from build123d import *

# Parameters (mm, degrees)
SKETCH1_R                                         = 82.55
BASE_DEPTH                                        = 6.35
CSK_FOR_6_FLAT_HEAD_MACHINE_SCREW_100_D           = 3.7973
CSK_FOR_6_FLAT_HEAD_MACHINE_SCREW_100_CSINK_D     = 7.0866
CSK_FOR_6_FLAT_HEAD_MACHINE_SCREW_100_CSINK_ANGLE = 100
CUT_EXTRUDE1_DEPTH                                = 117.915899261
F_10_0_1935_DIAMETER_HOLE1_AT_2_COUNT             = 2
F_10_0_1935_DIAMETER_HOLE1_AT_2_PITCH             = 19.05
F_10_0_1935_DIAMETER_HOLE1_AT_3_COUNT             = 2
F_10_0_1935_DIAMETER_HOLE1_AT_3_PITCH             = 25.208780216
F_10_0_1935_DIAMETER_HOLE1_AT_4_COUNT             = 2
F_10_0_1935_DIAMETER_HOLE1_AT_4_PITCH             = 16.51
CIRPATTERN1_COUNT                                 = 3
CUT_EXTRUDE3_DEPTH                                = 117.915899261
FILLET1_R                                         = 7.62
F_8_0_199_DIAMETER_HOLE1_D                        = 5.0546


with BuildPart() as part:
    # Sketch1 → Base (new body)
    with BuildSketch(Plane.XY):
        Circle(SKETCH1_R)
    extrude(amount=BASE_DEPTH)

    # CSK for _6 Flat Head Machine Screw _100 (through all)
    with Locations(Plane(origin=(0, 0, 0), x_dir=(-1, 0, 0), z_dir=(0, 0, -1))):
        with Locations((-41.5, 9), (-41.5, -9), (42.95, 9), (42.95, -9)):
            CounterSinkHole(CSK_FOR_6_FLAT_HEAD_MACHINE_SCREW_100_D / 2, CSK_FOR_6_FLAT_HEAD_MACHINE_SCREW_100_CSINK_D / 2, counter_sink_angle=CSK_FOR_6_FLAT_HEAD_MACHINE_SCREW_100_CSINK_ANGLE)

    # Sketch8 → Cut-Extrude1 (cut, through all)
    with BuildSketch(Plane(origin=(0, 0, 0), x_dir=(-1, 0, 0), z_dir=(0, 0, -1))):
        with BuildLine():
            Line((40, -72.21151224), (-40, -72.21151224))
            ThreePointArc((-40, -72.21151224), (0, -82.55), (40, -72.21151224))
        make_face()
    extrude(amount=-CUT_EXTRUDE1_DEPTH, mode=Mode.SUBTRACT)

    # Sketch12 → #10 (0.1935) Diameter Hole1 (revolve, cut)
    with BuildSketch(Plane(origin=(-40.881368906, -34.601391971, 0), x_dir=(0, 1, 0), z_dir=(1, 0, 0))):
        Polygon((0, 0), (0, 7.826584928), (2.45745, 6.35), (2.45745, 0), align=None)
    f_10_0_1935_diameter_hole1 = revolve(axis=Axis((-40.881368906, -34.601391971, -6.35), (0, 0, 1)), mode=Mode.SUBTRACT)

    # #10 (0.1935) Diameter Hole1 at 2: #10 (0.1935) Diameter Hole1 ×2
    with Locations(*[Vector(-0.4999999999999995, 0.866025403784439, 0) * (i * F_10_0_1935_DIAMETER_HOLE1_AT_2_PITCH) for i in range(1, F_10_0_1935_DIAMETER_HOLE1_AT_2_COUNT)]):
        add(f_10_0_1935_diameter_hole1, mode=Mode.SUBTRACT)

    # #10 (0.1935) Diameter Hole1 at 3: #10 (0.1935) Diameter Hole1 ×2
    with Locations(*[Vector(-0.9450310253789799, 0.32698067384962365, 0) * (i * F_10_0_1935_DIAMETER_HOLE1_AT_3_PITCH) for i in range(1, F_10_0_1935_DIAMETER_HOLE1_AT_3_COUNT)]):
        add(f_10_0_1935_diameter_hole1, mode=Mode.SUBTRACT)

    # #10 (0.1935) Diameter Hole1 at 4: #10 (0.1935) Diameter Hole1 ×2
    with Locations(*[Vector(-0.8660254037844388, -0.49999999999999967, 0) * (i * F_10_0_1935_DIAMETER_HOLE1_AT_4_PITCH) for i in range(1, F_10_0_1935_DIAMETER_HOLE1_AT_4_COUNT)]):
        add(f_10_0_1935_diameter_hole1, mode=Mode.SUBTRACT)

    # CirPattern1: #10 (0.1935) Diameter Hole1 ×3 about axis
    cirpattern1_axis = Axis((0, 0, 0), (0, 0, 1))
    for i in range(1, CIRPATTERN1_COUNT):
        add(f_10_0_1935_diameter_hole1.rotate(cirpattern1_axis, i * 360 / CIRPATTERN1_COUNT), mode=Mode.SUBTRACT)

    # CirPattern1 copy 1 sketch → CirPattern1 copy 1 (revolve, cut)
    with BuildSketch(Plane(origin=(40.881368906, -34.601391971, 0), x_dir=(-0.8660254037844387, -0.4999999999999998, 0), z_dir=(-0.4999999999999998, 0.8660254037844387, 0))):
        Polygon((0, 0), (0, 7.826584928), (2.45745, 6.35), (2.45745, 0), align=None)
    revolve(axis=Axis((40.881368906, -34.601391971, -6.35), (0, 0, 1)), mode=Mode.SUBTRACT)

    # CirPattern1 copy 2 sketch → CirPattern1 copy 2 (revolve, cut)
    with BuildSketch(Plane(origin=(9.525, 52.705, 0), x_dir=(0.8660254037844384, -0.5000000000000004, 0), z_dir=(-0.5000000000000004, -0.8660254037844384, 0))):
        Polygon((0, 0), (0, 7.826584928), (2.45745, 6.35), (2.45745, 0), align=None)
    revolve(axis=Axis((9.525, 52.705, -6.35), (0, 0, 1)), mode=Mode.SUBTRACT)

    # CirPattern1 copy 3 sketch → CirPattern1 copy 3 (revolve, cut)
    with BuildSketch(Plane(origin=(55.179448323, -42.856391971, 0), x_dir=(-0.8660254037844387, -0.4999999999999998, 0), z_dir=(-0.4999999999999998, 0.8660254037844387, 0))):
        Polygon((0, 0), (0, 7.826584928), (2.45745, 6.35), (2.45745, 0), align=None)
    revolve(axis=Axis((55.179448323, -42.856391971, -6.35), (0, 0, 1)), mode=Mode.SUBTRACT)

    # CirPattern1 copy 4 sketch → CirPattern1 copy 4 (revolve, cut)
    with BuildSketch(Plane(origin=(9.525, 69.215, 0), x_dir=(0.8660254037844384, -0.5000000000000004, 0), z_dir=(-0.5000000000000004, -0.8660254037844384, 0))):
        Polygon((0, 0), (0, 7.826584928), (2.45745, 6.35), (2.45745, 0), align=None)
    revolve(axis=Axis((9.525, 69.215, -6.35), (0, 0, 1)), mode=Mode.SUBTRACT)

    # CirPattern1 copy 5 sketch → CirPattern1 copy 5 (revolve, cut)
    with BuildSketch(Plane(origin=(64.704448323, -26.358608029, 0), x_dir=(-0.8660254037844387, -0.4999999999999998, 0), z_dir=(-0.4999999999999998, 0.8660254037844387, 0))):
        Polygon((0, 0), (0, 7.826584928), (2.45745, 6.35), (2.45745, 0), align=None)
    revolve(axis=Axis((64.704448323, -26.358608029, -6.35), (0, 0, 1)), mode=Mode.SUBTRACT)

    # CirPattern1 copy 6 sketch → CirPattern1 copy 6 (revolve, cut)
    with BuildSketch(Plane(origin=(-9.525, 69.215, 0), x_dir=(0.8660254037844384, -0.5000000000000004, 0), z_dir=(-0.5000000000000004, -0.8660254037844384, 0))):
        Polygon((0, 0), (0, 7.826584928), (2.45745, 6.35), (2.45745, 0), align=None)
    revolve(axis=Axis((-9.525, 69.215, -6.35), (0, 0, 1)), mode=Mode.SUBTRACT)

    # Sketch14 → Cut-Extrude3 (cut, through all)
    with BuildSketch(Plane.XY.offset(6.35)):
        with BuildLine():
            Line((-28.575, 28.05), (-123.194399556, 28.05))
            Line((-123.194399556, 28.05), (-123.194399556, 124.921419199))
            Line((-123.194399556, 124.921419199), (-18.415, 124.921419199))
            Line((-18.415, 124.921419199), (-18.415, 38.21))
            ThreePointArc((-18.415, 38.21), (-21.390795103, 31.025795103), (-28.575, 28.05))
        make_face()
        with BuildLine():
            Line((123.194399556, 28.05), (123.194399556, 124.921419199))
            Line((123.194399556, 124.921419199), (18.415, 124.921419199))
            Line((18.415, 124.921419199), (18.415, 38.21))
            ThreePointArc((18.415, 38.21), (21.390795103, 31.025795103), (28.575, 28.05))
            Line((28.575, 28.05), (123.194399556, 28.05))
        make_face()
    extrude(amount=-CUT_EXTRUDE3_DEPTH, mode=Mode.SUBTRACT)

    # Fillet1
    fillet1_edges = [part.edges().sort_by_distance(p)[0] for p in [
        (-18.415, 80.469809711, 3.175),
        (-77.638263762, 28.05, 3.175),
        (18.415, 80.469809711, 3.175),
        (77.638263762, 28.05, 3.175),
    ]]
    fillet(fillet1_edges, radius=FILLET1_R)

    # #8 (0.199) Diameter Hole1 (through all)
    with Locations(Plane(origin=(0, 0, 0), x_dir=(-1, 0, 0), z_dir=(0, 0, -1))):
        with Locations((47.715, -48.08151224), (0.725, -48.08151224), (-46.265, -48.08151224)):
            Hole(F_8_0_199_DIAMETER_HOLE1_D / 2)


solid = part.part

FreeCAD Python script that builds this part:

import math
import FreeCAD as App
import Part
import Sketcher

V = App.Vector
Q = App.Units.Quantity


def edges_at(feature, points):
    """Names of the edges that pass closest to the given points."""
    edges = feature.Shape.Edges
    near = lambda p: min(range(len(edges)), key=lambda i: edges[i].distToShape(Part.Vertex(*p))[0])
    return sorted({f"Edge{near(p) + 1}" for p in points})


def add_polygon(sketch, points):
    """Adds a closed chain of lines whose ends are joined by coincident constraints."""
    first, n = sketch.GeometryCount, len(points)
    for a, b in zip(points, points[1:] + points[:1]):
        sketch.addGeometry(Part.LineSegment(App.Vector(*a, 0), App.Vector(*b, 0)), False)
    for i in range(n):
        sketch.addConstraint(Sketcher.Constraint("Coincident", first + i, 2, first + (i + 1) % n, 1))

doc = App.newDocument("Part")
params = doc.addObject("Spreadsheet::Sheet", "Params")
for row, (alias, value) in enumerate([
    ("sketch1_diameter", "6.5 in"),
    ("pad1_length", "0.25 in"),
    ("hole_diameter", "0.1495 in"),
    ("hole_csink_diameter", "0.279 in"),
    ("sketch3_radius", "3.25 in"),
    ("sketch4_height", "0.25 in"),
    ("groove_angle", "360 deg"),
    ("linearpattern_pitch", "0.75 in"),
    ("linearpattern2_pitch", "25.20878 mm"),
    ("linearpattern3_pitch", "0.65 in"),
    ("sketch5_height", "0.25 in"),
    ("groove2_angle", "360 deg"),
    ("sketch6_height", "0.25 in"),
    ("groove3_angle", "360 deg"),
    ("sketch7_height", "0.25 in"),
    ("groove4_angle", "360 deg"),
    ("sketch8_height", "0.25 in"),
    ("groove5_angle", "360 deg"),
    ("sketch9_height", "0.25 in"),
    ("groove6_angle", "360 deg"),
    ("sketch10_height", "0.25 in"),
    ("groove7_angle", "360 deg"),
    ("sketch11_radius", "0.4 in"),
    ("fillet_radius", "0.3 in"),
    ("sketch12_diameter", "0.199 in"),
    ("hole2_diameter", "0.199 in"),
], start=1):
    params.set(f"A{row}", alias)
    params.set(f"B{row}", "=" + value)
    params.setAlias(f"B{row}", alias)

body = doc.addObject("PartDesign::Body", "Body")

# Sketch on XY plane
sketch1 = body.newObject("Sketcher::SketchObject", "Sketch")
sketch1.AttachmentSupport = (doc.getObject("XY_Plane"), [""])
sketch1.MapMode = "FlatFace"
sketch1.addGeometry(Part.Circle(V(0, 0, 0), V(0, 0, 1), 83), False)
sketch1.addConstraint(Sketcher.Constraint("Coincident", 0, 3, -1, 1))
sketch1.addConstraint(Sketcher.Constraint("Diameter", 0, Q("6.5 in")))
sketch1.setExpression("Constraints[1]", "Params.sketch1_diameter")
pad1 = body.newObject("PartDesign::Pad", "Pad")
pad1.Profile = sketch1
pad1.setExpression("Length", "Params.pad1_length")

# Sketch on XY plane
sketch2 = body.newObject("Sketcher::SketchObject", "Sketch001")
sketch2.AttachmentSupport = (doc.getObject("XY_Plane"), [""])
sketch2.MapMode = "FlatFace"
sketch2.addGeometry(Part.Circle(V(41.5, 9, 0), V(0, 0, 1), 1.9), False)
sketch2.addGeometry(Part.Circle(V(41.5, -9, 0), V(0, 0, 1), 1.9), False)
sketch2.addGeometry(Part.Circle(V(-43, 9, 0), V(0, 0, 1), 1.9), False)
sketch2.addGeometry(Part.Circle(V(-43, -9, 0), V(0, 0, 1), 1.9), False)
sketch2.addConstraint(Sketcher.Constraint("Equal", 0, 1))
sketch2.addConstraint(Sketcher.Constraint("Equal", 1, 2))
sketch2.addConstraint(Sketcher.Constraint("Equal", 2, 3))
sketch2.addConstraint(Sketcher.Constraint("Symmetric", 0, 3, 1, 3, -1))
sketch2.addConstraint(Sketcher.Constraint("Symmetric", 2, 3, 3, 3, -1))
sketch2.addConstraint(Sketcher.Constraint("Horizontal", 0, 3, 2, 3))
sketch2.addConstraint(Sketcher.Constraint("Diameter", 0, Q("0.1495 in")))
sketch2.addConstraint(Sketcher.Constraint("DistanceX", -1, 1, 0, 3, Q("41.5 mm")))
sketch2.addConstraint(Sketcher.Constraint("DistanceY", -1, 1, 0, 3, Q("9 mm")))
sketch2.addConstraint(Sketcher.Constraint("DistanceX", 2, 3, -1, 1, Q("42.95 mm")))
doc.recompute()
hole = body.newObject("PartDesign::Hole", "Hole")
hole.Profile = sketch2
hole.ThreadType = "None"
hole.setExpression("Diameter", "Params.hole_diameter")
hole.DepthType = "ThroughAll"
hole.HoleCutType = "Countersink"
hole.setExpression("HoleCutDiameter", "Params.hole_csink_diameter")
hole.HoleCutCountersinkAngle = 100
hole.Reversed = True

# Sketch on XY plane
sketch3 = body.newObject("Sketcher::SketchObject", "Sketch002")
sketch3.AttachmentSupport = (doc.getObject("XY_Plane"), [""])
sketch3.MapMode = "FlatFace"
sketch3.addGeometry(Part.LineSegment(V(-40, -72, 0), V(40, -72, 0)), False)
sketch3.addGeometry(Part.ArcOfCircle(Part.Circle(V(0, 0, 0), V(0, 0, 1), 83), math.radians(-119), math.radians(-61)), False)
sketch3.addConstraint(Sketcher.Constraint("Coincident", 0, 1, 1, 1))
sketch3.addConstraint(Sketcher.Constraint("Coincident", 1, 2, 0, 2))
sketch3.addConstraint(Sketcher.Constraint("Horizontal", 0))
sketch3.addConstraint(Sketcher.Constraint("Coincident", 1, 3, -1, 1))
sketch3.addConstraint(Sketcher.Constraint("Radius", 1, Q("3.25 in")))
sketch3.addConstraint(Sketcher.Constraint("DistanceX", 0, 1, 0, 2, Q("80 mm")))
sketch3.setExpression("Constraints[4]", "Params.sketch3_radius")
pocket1 = body.newObject("PartDesign::Pocket", "Pocket")
pocket1.Profile = sketch3
pocket1.Type = "ThroughAll"
pocket1.Reversed = True

# Sketch on YZ plane
sketch4 = body.newObject("Sketcher::SketchObject", "Sketch003")
sketch4.AttachmentSupport = (doc.getObject("YZ_Plane"), [""])
sketch4.MapMode = "FlatFace"
sketch4.AttachmentOffset = App.Placement(V(0, 0, -40.881369), App.Rotation())
add_polygon(sketch4, [(-34.6, 7.8), (-34.6, 0), (-32.1, 0), (-32.1, 6.3)])  # lines 0-3
sketch4.addGeometry(Part.LineSegment(V(-34.6, 0, 0), V(-34.6, 7.8, 0)), True)  # axis
sketch4.addConstraint(Sketcher.Constraint("Vertical", 0))
sketch4.addConstraint(Sketcher.Constraint("Horizontal", 1))
sketch4.addConstraint(Sketcher.Constraint("Vertical", 2))
sketch4.addConstraint(Sketcher.Constraint("Vertical", 4))
sketch4.addConstraint(Sketcher.Constraint("Coincident", 4, 1, 0, 2))
sketch4.addConstraint(Sketcher.Constraint("PointOnObject", 0, 2, -1))
sketch4.addConstraint(Sketcher.Constraint("Equal", 0, 4))
sketch4.addConstraint(Sketcher.Constraint("Angle", 3, Q("149 deg")))
sketch4.addConstraint(Sketcher.Constraint("DistanceY", 2, 1, 2, 2, Q("0.25 in")))
sketch4.addConstraint(Sketcher.Constraint("DistanceX", 1, 1, 1, 2, Q("2.45745 mm")))
sketch4.addConstraint(Sketcher.Constraint("DistanceX", 0, 2, -1, 1, Q("34.601392 mm")))
sketch4.setExpression("Constraints[12]", "Params.sketch4_height")
groove = body.newObject("PartDesign::Groove", "Groove")
groove.Profile = sketch4
groove.ReferenceAxis = (sketch4, ["Axis0"])
groove.setExpression("Angle", "Params.groove_angle")
doc.recompute()

datumline = body.newObject("PartDesign::Line", "DatumLine")
datumline.Placement = App.Placement(V(0, 0, 0), App.Rotation(V(0, 0, 1), V(-0.5, 0.866025404, 0)))
linearpattern = body.newObject("PartDesign::LinearPattern", "LinearPattern")
linearpattern.Originals = [groove]
linearpattern.Direction = (datumline, [""])
linearpattern.Mode = "offset"
linearpattern.setExpression("Offset", "Params.linearpattern_pitch")
linearpattern.Occurrences = 2
body.Tip = linearpattern
doc.recompute()

datumline2 = body.newObject("PartDesign::Line", "DatumLine001")
datumline2.Placement = App.Placement(V(0, 0, 0), App.Rotation(V(0, 0, 1), V(-0.945031025, 0.326980674, 0)))
linearpattern2 = body.newObject("PartDesign::LinearPattern", "LinearPattern001")
linearpattern2.Originals = [groove]
linearpattern2.Direction = (datumline2, [""])
linearpattern2.Mode = "offset"
linearpattern2.setExpression("Offset", "Params.linearpattern2_pitch")
linearpattern2.Occurrences = 2
body.Tip = linearpattern2
doc.recompute()

datumline3 = body.newObject("PartDesign::Line", "DatumLine002")
datumline3.Placement = App.Placement(V(0, 0, 0), App.Rotation(V(0, 0, 1), V(-0.866025404, -0.5, 0)))
linearpattern3 = body.newObject("PartDesign::LinearPattern", "LinearPattern002")
linearpattern3.Originals = [groove]
linearpattern3.Direction = (datumline3, [""])
linearpattern3.Mode = "offset"
linearpattern3.setExpression("Offset", "Params.linearpattern3_pitch")
linearpattern3.Occurrences = 2
body.Tip = linearpattern3
doc.recompute()

polarpattern = body.newObject("PartDesign::PolarPattern", "PolarPattern")
polarpattern.Originals = [groove]
polarpattern.Axis = (doc.getObject("Z_Axis"), [""])
polarpattern.Angle = 360
polarpattern.Occurrences = 3
body.Tip = polarpattern

# Sketch on an angled plane
sketch5 = body.newObject("Sketcher::SketchObject", "Sketch004")
sketch5.Placement = App.Placement(V(40.881369, -34.601392, 0), App.Rotation(V(-0.866025404, -0.5, 0), V(0, 0, 1), V(-0.5, 0.866025404, 0), "ZXY"))
add_polygon(sketch5, [(0, 7.8), (0, 0), (2.5, 0), (2.5, 6.4)])  # lines 0-3
sketch5.addConstraint(Sketcher.Constraint("Vertical", 0))
sketch5.addConstraint(Sketcher.Constraint("Horizontal", 1))
sketch5.addConstraint(Sketcher.Constraint("Vertical", 2))
sketch5.addConstraint(Sketcher.Constraint("Coincident", 0, 2, -1, 1))
sketch5.addConstraint(Sketcher.Constraint("Angle", 3, Q("149 deg")))
sketch5.addConstraint(Sketcher.Constraint("DistanceY", 2, 1, 2, 2, Q("0.25 in")))
sketch5.addConstraint(Sketcher.Constraint("DistanceX", 1, 1, 1, 2, Q("2.45745 mm")))
sketch5.setExpression("Constraints[9]", "Params.sketch5_height")
groove2 = body.newObject("PartDesign::Groove", "Groove001")
groove2.Profile = sketch5
groove2.ReferenceAxis = (sketch5, ["V_Axis"])
groove2.setExpression("Angle", "Params.groove2_angle")

# Sketch on an angled plane
sketch6 = body.newObject("Sketcher::SketchObject", "Sketch005")
sketch6.Placement = App.Placement(V(9.525, 52.705, 0), App.Rotation(V(0.866025404, -0.5, 0), V(0, 0, 1), V(-0.5, -0.866025404, 0), "ZXY"))
add_polygon(sketch6, [(0, 7.8), (0, 0), (2.5, 0), (2.5, 6.4)])  # lines 0-3
sketch6.addConstraint(Sketcher.Constraint("Vertical", 0))
sketch6.addConstraint(Sketcher.Constraint("Horizontal", 1))
sketch6.addConstraint(Sketcher.Constraint("Vertical", 2))
sketch6.addConstraint(Sketcher.Constraint("Coincident", 0, 2, -1, 1))
sketch6.addConstraint(Sketcher.Constraint("Angle", 3, Q("149 deg")))
sketch6.addConstraint(Sketcher.Constraint("DistanceY", 2, 1, 2, 2, Q("0.25 in")))
sketch6.addConstraint(Sketcher.Constraint("DistanceX", 1, 1, 1, 2, Q("2.45745 mm")))
sketch6.setExpression("Constraints[9]", "Params.sketch6_height")
groove3 = body.newObject("PartDesign::Groove", "Groove002")
groove3.Profile = sketch6
groove3.ReferenceAxis = (sketch6, ["V_Axis"])
groove3.setExpression("Angle", "Params.groove3_angle")

# Sketch on an angled plane
sketch7 = body.newObject("Sketcher::SketchObject", "Sketch006")
sketch7.Placement = App.Placement(V(55.179448, -42.856392, 0), App.Rotation(V(-0.866025404, -0.5, 0), V(0, 0, 1), V(-0.5, 0.866025404, 0), "ZXY"))
add_polygon(sketch7, [(0, 7.8), (0, 0), (2.5, 0), (2.5, 6.4)])  # lines 0-3
sketch7.addConstraint(Sketcher.Constraint("Vertical", 0))
sketch7.addConstraint(Sketcher.Constraint("Horizontal", 1))
sketch7.addConstraint(Sketcher.Constraint("Vertical", 2))
sketch7.addConstraint(Sketcher.Constraint("Coincident", 0, 2, -1, 1))
sketch7.addConstraint(Sketcher.Constraint("Angle", 3, Q("149 deg")))
sketch7.addConstraint(Sketcher.Constraint("DistanceY", 2, 1, 2, 2, Q("0.25 in")))
sketch7.addConstraint(Sketcher.Constraint("DistanceX", 1, 1, 1, 2, Q("2.45745 mm")))
sketch7.setExpression("Constraints[9]", "Params.sketch7_height")
groove4 = body.newObject("PartDesign::Groove", "Groove003")
groove4.Profile = sketch7
groove4.ReferenceAxis = (sketch7, ["V_Axis"])
groove4.setExpression("Angle", "Params.groove4_angle")

# Sketch on an angled plane
sketch8 = body.newObject("Sketcher::SketchObject", "Sketch007")
sketch8.Placement = App.Placement(V(9.525, 69.215, 0), App.Rotation(V(0.866025404, -0.5, 0), V(0, 0, 1), V(-0.5, -0.866025404, 0), "ZXY"))
add_polygon(sketch8, [(0, 7.8), (0, 0), (2.5, 0), (2.5, 6.4)])  # lines 0-3
sketch8.addConstraint(Sketcher.Constraint("Vertical", 0))
sketch8.addConstraint(Sketcher.Constraint("Horizontal", 1))
sketch8.addConstraint(Sketcher.Constraint("Vertical", 2))
sketch8.addConstraint(Sketcher.Constraint("Coincident", 0, 2, -1, 1))
sketch8.addConstraint(Sketcher.Constraint("Angle", 3, Q("149 deg")))
sketch8.addConstraint(Sketcher.Constraint("DistanceY", 2, 1, 2, 2, Q("0.25 in")))
sketch8.addConstraint(Sketcher.Constraint("DistanceX", 1, 1, 1, 2, Q("2.45745 mm")))
sketch8.setExpression("Constraints[9]", "Params.sketch8_height")
groove5 = body.newObject("PartDesign::Groove", "Groove004")
groove5.Profile = sketch8
groove5.ReferenceAxis = (sketch8, ["V_Axis"])
groove5.setExpression("Angle", "Params.groove5_angle")

# Sketch on an angled plane
sketch9 = body.newObject("Sketcher::SketchObject", "Sketch008")
sketch9.Placement = App.Placement(V(64.704448, -26.358608, 0), App.Rotation(V(-0.866025404, -0.5, 0), V(0, 0, 1), V(-0.5, 0.866025404, 0), "ZXY"))
add_polygon(sketch9, [(0, 7.8), (0, 0), (2.5, 0), (2.5, 6.4)])  # lines 0-3
sketch9.addConstraint(Sketcher.Constraint("Vertical", 0))
sketch9.addConstraint(Sketcher.Constraint("Horizontal", 1))
sketch9.addConstraint(Sketcher.Constraint("Vertical", 2))
sketch9.addConstraint(Sketcher.Constraint("Coincident", 0, 2, -1, 1))
sketch9.addConstraint(Sketcher.Constraint("Angle", 3, Q("149 deg")))
sketch9.addConstraint(Sketcher.Constraint("DistanceY", 2, 1, 2, 2, Q("0.25 in")))
sketch9.addConstraint(Sketcher.Constraint("DistanceX", 1, 1, 1, 2, Q("2.45745 mm")))
sketch9.setExpression("Constraints[9]", "Params.sketch9_height")
groove6 = body.newObject("PartDesign::Groove", "Groove005")
groove6.Profile = sketch9
groove6.ReferenceAxis = (sketch9, ["V_Axis"])
groove6.setExpression("Angle", "Params.groove6_angle")

# Sketch on an angled plane
sketch10 = body.newObject("Sketcher::SketchObject", "Sketch009")
sketch10.Placement = App.Placement(V(-9.525, 69.215, 0), App.Rotation(V(0.866025404, -0.5, 0), V(0, 0, 1), V(-0.5, -0.866025404, 0), "ZXY"))
add_polygon(sketch10, [(0, 7.8), (0, 0), (2.5, 0), (2.5, 6.4)])  # lines 0-3
sketch10.addConstraint(Sketcher.Constraint("Vertical", 0))
sketch10.addConstraint(Sketcher.Constraint("Horizontal", 1))
sketch10.addConstraint(Sketcher.Constraint("Vertical", 2))
sketch10.addConstraint(Sketcher.Constraint("Coincident", 0, 2, -1, 1))
sketch10.addConstraint(Sketcher.Constraint("Angle", 3, Q("149 deg")))
sketch10.addConstraint(Sketcher.Constraint("DistanceY", 2, 1, 2, 2, Q("0.25 in")))
sketch10.addConstraint(Sketcher.Constraint("DistanceX", 1, 1, 1, 2, Q("2.45745 mm")))
sketch10.setExpression("Constraints[9]", "Params.sketch10_height")
groove7 = body.newObject("PartDesign::Groove", "Groove006")
groove7.Profile = sketch10
groove7.ReferenceAxis = (sketch10, ["V_Axis"])
groove7.setExpression("Angle", "Params.groove7_angle")

# Sketch on XY plane
sketch11 = body.newObject("Sketcher::SketchObject", "Sketch010")
sketch11.AttachmentSupport = (doc.getObject("XY_Plane"), [""])
sketch11.MapMode = "FlatFace"
sketch11.AttachmentOffset = App.Placement(V(0, 0, 0.25 * 25.4), App.Rotation())
sketch11.addGeometry(Part.LineSegment(V(-123, 28, 0), V(-29, 28, 0)), False)
sketch11.addGeometry(Part.ArcOfCircle(Part.Circle(V(-29, 38, 0), V(0, 0, 1), 10), math.radians(-90), math.radians(0)), False)
sketch11.addGeometry(Part.LineSegment(V(-18, 38, 0), V(-18, 125, 0)), False)
sketch11.addGeometry(Part.LineSegment(V(-18, 125, 0), V(-123, 125, 0)), False)
sketch11.addGeometry(Part.LineSegment(V(-123, 125, 0), V(-123, 28, 0)), False)
sketch11.addGeometry(Part.LineSegment(V(123, 28, 0), V(123, 125, 0)), False)
sketch11.addGeometry(Part.LineSegment(V(123, 125, 0), V(18, 125, 0)), False)
sketch11.addGeometry(Part.LineSegment(V(18, 125, 0), V(18, 38, 0)), False)
sketch11.addGeometry(Part.ArcOfCircle(Part.Circle(V(29, 38, 0), V(0, 0, 1), 10), math.radians(180), math.radians(270)), False)
sketch11.addGeometry(Part.LineSegment(V(29, 28, 0), V(123, 28, 0)), False)
sketch11.addConstraint(Sketcher.Constraint("Tangent", 0, 2, 1, 1))
sketch11.addConstraint(Sketcher.Constraint("Tangent", 1, 2, 2, 1))
sketch11.addConstraint(Sketcher.Constraint("Coincident", 2, 2, 3, 1))
sketch11.addConstraint(Sketcher.Constraint("Coincident", 3, 2, 4, 1))
sketch11.addConstraint(Sketcher.Constraint("Coincident", 4, 2, 0, 1))
sketch11.addConstraint(Sketcher.Constraint("Coincident", 5, 2, 6, 1))
sketch11.addConstraint(Sketcher.Constraint("Coincident", 6, 2, 7, 1))
sketch11.addConstraint(Sketcher.Constraint("Tangent", 7, 2, 8, 1))
sketch11.addConstraint(Sketcher.Constraint("Tangent", 8, 2, 9, 1))
sketch11.addConstraint(Sketcher.Constraint("Coincident", 9, 2, 5, 1))
sketch11.addConstraint(Sketcher.Constraint("Horizontal", 0))
sketch11.addConstraint(Sketcher.Constraint("Vertical", 2))
sketch11.addConstraint(Sketcher.Constraint("Horizontal", 3))
sketch11.addConstraint(Sketcher.Constraint("Vertical", 4))
sketch11.addConstraint(Sketcher.Constraint("Vertical", 5))
sketch11.addConstraint(Sketcher.Constraint("Horizontal", 6))
sketch11.addConstraint(Sketcher.Constraint("Vertical", 7))
sketch11.addConstraint(Sketcher.Constraint("Horizontal", 9))
sketch11.addConstraint(Sketcher.Constraint("Equal", 1, 8))
sketch11.addConstraint(Sketcher.Constraint("Symmetric", 1, 3, 8, 3, -2))
sketch11.addConstraint(Sketcher.Constraint("Symmetric", 3, 2, 5, 2, -2))
sketch11.addConstraint(Sketcher.Constraint("Radius", 1, Q("0.4 in")))
sketch11.addConstraint(Sketcher.Constraint("DistanceX", 1, 3, 8, 3, Q("2.25 in")))
sketch11.addConstraint(Sketcher.Constraint("DistanceX", 0, 1, 0, 2, Q("94.6194 mm")))
sketch11.addConstraint(Sketcher.Constraint("DistanceY", 2, 1, 2, 2, Q("86.711419 mm")))
sketch11.addConstraint(Sketcher.Constraint("DistanceY", -1, 1, 1, 3, Q("38.21 mm")))
sketch11.setExpression("Constraints[21]", "Params.sketch11_radius")
pocket2 = body.newObject("PartDesign::Pocket", "Pocket001")
pocket2.Profile = sketch11
pocket2.Type = "ThroughAll"
doc.recompute()

fillet = body.newObject("PartDesign::Fillet", "Fillet")
fillet.Base = (pocket2, edges_at(pocket2, [
    (-18.415, 80.47, 3.175),
    (-77.638, 28.05, 3.175),
    (18.415, 80.47, 3.175),
    (77.638, 28.05, 3.175),
]))
fillet.setExpression("Radius", "Params.fillet_radius")

# Sketch on XY plane
sketch12 = body.newObject("Sketcher::SketchObject", "Sketch011")
sketch12.AttachmentSupport = (doc.getObject("XY_Plane"), [""])
sketch12.MapMode = "FlatFace"
sketch12.addGeometry(Part.Circle(V(-47.7, -48.1, 0), V(0, 0, 1), 2.5), False)
sketch12.addGeometry(Part.Circle(V(-0.7, -48.1, 0), V(0, 0, 1), 2.5), False)
sketch12.addGeometry(Part.Circle(V(46.3, -48.1, 0), V(0, 0, 1), 2.5), False)
sketch12.addConstraint(Sketcher.Constraint("Equal", 0, 1))
sketch12.addConstraint(Sketcher.Constraint("Equal", 1, 2))
sketch12.addConstraint(Sketcher.Constraint("Horizontal", 0, 3, 1, 3))
sketch12.addConstraint(Sketcher.Constraint("Horizontal", 1, 3, 2, 3))
sketch12.addConstraint(Sketcher.Constraint("Diameter", 0, Q("0.199 in")))
sketch12.addConstraint(Sketcher.Constraint("DistanceX", 0, 3, 2, 3, Q("3.7 in")))
sketch12.addConstraint(Sketcher.Constraint("DistanceX", 0, 3, 1, 3, Q("1.85 in")))
sketch12.addConstraint(Sketcher.Constraint("DistanceX", 0, 3, -1, 1, Q("47.715 mm")))
sketch12.addConstraint(Sketcher.Constraint("DistanceY", 0, 3, -1, 1, Q("48.081512 mm")))
sketch12.setExpression("Constraints[4]", "Params.sketch12_diameter")
doc.recompute()
hole2 = body.newObject("PartDesign::Hole", "Hole001")
hole2.Profile = sketch12
hole2.ThreadType = "None"
hole2.setExpression("Diameter", "Params.hole2_diameter")
hole2.DepthType = "ThroughAll"
hole2.Reversed = True

doc.recompute()
